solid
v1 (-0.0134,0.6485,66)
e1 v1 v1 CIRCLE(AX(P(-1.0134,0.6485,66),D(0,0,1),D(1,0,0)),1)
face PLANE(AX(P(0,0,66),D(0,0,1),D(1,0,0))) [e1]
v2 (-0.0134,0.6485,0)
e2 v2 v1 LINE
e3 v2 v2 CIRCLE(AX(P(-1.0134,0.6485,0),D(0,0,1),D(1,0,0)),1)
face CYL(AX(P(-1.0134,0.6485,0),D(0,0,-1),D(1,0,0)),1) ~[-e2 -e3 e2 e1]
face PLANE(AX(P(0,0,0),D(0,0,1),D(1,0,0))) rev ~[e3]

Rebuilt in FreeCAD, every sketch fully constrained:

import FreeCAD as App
import Part
import Sketcher
from FreeCAD import Vector
Q = App.Units.Quantity

doc = App.newDocument("Part")
body = doc.addObject("PartDesign::Body", "Body")

sketch1 = body.newObject("Sketcher::SketchObject", "Sketch")
sketch1.AttachmentSupport = (doc.getObject("XY_Plane"), [""])
sketch1.MapMode = "FlatFace"
sketch1.addGeometry(Part.Circle(Vector(-1.0134, 0.6485, 0), Vector(0, 0, 1), 1), False)
sketch1.addConstraint([
    Sketcher.Constraint("Diameter", 0, Q("2 mm")),
    Sketcher.Constraint("DistanceX", 0, 3, -1, 1, Q("1.0134 mm")),
    Sketcher.Constraint("DistanceY", -1, 1, 0, 3, Q("0.6485 mm")),
])
pad1 = body.newObject("PartDesign::Pad", "Pad")
pad1.Profile = sketch1
pad1.Length = 66

doc.recompute()
